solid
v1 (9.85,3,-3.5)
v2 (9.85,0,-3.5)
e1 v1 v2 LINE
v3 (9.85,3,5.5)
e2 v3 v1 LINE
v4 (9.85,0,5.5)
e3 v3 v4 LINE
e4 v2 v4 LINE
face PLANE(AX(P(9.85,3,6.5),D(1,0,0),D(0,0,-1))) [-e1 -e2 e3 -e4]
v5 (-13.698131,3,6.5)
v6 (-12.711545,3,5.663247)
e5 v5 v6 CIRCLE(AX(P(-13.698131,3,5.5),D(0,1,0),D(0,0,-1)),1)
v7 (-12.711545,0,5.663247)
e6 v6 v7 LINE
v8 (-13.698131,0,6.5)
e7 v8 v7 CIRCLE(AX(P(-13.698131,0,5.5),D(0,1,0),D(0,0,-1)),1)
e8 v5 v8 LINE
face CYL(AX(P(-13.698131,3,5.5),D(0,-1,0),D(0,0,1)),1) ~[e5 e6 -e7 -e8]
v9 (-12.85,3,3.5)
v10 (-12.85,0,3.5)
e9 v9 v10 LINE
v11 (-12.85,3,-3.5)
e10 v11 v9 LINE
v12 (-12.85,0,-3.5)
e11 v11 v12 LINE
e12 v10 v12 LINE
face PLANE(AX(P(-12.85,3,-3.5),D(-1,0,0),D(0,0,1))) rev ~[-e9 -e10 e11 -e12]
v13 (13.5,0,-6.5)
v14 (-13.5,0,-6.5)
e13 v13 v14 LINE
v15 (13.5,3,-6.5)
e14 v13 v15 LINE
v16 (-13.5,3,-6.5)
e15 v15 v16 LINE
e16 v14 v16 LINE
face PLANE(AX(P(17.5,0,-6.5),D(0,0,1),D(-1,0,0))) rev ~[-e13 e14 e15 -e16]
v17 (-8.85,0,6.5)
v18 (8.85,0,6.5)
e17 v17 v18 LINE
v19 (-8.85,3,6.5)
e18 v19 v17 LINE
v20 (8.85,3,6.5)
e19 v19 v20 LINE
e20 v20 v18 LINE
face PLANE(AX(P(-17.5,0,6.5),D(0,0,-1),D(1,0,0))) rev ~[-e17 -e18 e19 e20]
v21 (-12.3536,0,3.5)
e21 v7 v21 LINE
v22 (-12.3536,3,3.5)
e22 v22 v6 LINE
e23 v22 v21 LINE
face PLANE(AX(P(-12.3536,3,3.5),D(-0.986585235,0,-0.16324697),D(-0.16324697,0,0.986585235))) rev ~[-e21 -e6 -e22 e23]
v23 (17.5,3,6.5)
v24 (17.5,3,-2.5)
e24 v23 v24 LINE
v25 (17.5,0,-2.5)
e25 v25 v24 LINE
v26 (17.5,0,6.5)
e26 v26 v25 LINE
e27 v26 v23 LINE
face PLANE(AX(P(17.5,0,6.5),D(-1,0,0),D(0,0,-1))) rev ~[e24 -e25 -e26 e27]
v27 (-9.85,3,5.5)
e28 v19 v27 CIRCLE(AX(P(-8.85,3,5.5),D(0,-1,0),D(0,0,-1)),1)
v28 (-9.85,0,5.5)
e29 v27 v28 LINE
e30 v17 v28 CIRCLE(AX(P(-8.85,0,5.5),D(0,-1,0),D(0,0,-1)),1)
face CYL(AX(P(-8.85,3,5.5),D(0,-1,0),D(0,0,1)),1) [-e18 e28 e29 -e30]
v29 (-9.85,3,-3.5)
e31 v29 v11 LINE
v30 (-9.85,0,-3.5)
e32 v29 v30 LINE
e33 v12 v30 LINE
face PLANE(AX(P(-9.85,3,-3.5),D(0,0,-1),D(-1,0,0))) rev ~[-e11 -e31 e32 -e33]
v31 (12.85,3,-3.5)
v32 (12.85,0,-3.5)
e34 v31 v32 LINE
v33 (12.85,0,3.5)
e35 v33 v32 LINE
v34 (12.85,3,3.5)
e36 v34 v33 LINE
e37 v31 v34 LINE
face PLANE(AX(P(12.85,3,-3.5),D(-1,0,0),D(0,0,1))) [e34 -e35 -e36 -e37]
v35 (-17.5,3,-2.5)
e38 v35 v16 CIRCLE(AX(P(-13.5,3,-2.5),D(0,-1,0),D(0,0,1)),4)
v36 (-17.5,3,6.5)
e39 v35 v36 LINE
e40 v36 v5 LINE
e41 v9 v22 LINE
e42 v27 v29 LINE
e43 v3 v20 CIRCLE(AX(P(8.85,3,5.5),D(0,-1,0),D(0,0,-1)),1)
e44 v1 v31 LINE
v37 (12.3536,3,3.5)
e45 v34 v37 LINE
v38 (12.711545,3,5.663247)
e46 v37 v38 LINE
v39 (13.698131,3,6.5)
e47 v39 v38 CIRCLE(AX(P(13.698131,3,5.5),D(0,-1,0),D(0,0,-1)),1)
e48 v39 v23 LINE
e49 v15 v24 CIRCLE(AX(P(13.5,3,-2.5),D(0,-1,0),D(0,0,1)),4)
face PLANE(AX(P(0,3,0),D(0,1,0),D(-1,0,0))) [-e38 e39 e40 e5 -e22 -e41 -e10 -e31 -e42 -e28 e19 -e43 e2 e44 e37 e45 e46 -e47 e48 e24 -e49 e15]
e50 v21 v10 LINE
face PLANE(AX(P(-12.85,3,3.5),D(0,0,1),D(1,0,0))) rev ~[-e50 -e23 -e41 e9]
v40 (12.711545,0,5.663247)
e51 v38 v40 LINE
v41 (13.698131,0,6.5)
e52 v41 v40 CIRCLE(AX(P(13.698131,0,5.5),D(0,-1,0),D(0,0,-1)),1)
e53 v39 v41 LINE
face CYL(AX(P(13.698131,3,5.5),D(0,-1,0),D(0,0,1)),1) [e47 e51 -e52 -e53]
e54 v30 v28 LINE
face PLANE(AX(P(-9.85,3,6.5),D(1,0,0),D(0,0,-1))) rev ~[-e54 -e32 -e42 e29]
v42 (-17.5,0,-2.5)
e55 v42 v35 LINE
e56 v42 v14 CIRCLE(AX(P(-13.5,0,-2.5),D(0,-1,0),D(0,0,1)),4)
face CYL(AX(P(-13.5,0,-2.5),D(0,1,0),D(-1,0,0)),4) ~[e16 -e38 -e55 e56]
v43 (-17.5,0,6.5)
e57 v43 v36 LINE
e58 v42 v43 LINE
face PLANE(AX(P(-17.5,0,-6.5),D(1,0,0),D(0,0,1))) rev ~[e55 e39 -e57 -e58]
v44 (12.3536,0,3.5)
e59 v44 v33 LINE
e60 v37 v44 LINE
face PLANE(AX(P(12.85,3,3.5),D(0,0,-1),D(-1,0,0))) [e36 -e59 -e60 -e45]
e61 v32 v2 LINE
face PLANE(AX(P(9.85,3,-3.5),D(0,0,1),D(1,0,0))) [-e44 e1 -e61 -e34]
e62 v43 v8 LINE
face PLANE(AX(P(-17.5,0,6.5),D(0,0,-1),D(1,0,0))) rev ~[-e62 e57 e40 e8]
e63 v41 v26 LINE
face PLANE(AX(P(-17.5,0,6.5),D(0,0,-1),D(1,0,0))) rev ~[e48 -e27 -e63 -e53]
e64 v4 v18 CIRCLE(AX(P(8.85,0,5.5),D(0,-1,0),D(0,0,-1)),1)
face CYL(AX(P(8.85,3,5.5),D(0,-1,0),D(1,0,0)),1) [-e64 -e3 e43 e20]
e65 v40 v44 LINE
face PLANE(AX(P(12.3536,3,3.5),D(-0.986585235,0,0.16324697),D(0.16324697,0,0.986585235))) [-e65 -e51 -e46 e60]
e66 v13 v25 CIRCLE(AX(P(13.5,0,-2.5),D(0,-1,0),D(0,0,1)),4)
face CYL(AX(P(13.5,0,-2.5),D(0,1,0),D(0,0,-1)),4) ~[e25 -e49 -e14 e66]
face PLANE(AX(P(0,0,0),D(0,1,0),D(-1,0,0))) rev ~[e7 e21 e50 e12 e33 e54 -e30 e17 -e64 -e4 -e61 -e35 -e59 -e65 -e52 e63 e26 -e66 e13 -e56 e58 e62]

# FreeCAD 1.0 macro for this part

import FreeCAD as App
import Part
import Sketcher
Q = App.Units.Quantity


def edges_at(feature, points):
    """Names of the edges that pass closest to the given points."""
    edges = feature.Shape.Edges
    near = lambda p: min(range(len(edges)), key=lambda i: edges[i].distToShape(Part.Vertex(*p))[0])
    return sorted({f"Edge{near(p) + 1}" for p in points})

doc = App.newDocument("Part")
params = doc.addObject("Spreadsheet::Sheet", "Params")
for row, (alias, value) in enumerate([
    ("sketch1_width", "35 mm"),
    ("sketch1_height", "13 mm"),
    ("pad1_length", "3 mm"),
    ("fillet_radius", "4 mm"),
    ("sketch2_width", "3 mm"),
    ("sketch2_height", "10 mm"),
    ("fillet2_radius", "1 mm"),
], start=1):
    params.set(f"A{row}", alias)
    params.set(f"B{row}", "=" + value)
    params.setAlias(f"B{row}", alias)

body = doc.addObject("PartDesign::Body", "Body")

# Sketch on XZ plane
sketch1 = body.newObject("Sketcher::SketchObject", "Sketch")
sketch1.AttachmentSupport = (doc.getObject("XZ_Plane"), [""])
sketch1.MapMode = "FlatFace"
sketch1.addGeometry(Part.LineSegment(App.Vector(-18, -6, 0), App.Vector(-18, 6, 0)), False)
sketch1.addGeometry(Part.LineSegment(App.Vector(-18, 6, 0), App.Vector(18, 6, 0)), False)
sketch1.addGeometry(Part.LineSegment(App.Vector(18, 6, 0), App.Vector(18, -6, 0)), False)
sketch1.addGeometry(Part.LineSegment(App.Vector(18, -6, 0), App.Vector(-18, -6, 0)), False)
sketch1.addConstraint(Sketcher.Constraint("Coincident", 0, 2, 1, 1))
sketch1.addConstraint(Sketcher.Constraint("Coincident", 1, 2, 2, 1))
sketch1.addConstraint(Sketcher.Constraint("Coincident", 2, 2, 3, 1))
sketch1.addConstraint(Sketcher.Constraint("Coincident", 3, 2, 0, 1))
sketch1.addConstraint(Sketcher.Constraint("Vertical", 0))
sketch1.addConstraint(Sketcher.Constraint("Horizontal", 1))
sketch1.addConstraint(Sketcher.Constraint("Vertical", 2))
sketch1.addConstraint(Sketcher.Constraint("Horizontal", 3))
sketch1.addConstraint(Sketcher.Constraint("Symmetric", 0, 2, 2, 2, -1, 1))
sketch1.addConstraint(Sketcher.Constraint("DistanceX", 1, 1, 1, 2, Q("35 mm")))
sketch1.addConstraint(Sketcher.Constraint("DistanceY", 0, 1, 0, 2, Q("13 mm")))
sketch1.setExpression("Constraints[9]", "Params.sketch1_width")
sketch1.setExpression("Constraints[10]", "Params.sketch1_height")
pad1 = body.newObject("PartDesign::Pad", "Pad")
pad1.Profile = sketch1
pad1.setExpression("Length", "Params.pad1_length")
pad1.Reversed = True
doc.recompute()

fillet = body.newObject("PartDesign::Fillet", "Fillet")
fillet.Base = (pad1, edges_at(pad1, [(-17.5, 1.5, -6.5), (17.5, 1.5, -6.5)]))
fillet.setExpression("Radius", "Params.fillet_radius")

# Sketch on XZ plane
sketch2 = body.newObject("Sketcher::SketchObject", "Sketch001")
sketch2.AttachmentSupport = (doc.getObject("XZ_Plane"), [""])
sketch2.MapMode = "FlatFace"
sketch2.AttachmentOffset = App.Placement(App.Vector(0, 0, -3), App.Rotation())
sketch2.addGeometry(Part.LineSegment(App.Vector(-12.35, 3.5, 0), App.Vector(-12.85, 6.5, 0)), False)
sketch2.addGeometry(Part.LineSegment(App.Vector(-12.85, 6.5, 0), App.Vector(-9.85, 6.5, 0)), False)
sketch2.addGeometry(Part.LineSegment(App.Vector(-9.85, 6.5, 0), App.Vector(-9.85, -3.5, 0)), False)
sketch2.addGeometry(Part.LineSegment(App.Vector(-9.85, -3.5, 0), App.Vector(-12.85, -3.5, 0)), False)
sketch2.addGeometry(Part.LineSegment(App.Vector(-12.85, -3.5, 0), App.Vector(-12.85, 3.5, 0)), False)
sketch2.addGeometry(Part.LineSegment(App.Vector(-12.85, 3.5, 0), App.Vector(-12.35, 3.5, 0)), False)
sketch2.addGeometry(Part.LineSegment(App.Vector(9.85, -3.5, 0), App.Vector(9.85, 6.5, 0)), False)
sketch2.addGeometry(Part.LineSegment(App.Vector(9.85, 6.5, 0), App.Vector(12.85, 6.5, 0)), False)
sketch2.addGeometry(Part.LineSegment(App.Vector(12.85, 6.5, 0), App.Vector(12.35, 3.5, 0)), False)
sketch2.addGeometry(Part.LineSegment(App.Vector(12.35, 3.5, 0), App.Vector(12.85, 3.5, 0)), False)
sketch2.addGeometry(Part.LineSegment(App.Vector(12.85, 3.5, 0), App.Vector(12.85, -3.5, 0)), False)
sketch2.addGeometry(Part.LineSegment(App.Vector(12.85, -3.5, 0), App.Vector(9.85, -3.5, 0)), False)
sketch2.addConstraint(Sketcher.Constraint("Coincident", 0, 2, 1, 1))
sketch2.addConstraint(Sketcher.Constraint("Coincident", 1, 2, 2, 1))
sketch2.addConstraint(Sketcher.Constraint("Coincident", 2, 2, 3, 1))
sketch2.addConstraint(Sketcher.Constraint("Coincident", 3, 2, 4, 1))
sketch2.addConstraint(Sketcher.Constraint("Coincident", 4, 2, 5, 1))
sketch2.addConstraint(Sketcher.Constraint("Coincident", 5, 2, 0, 1))
sketch2.addConstraint(Sketcher.Constraint("Coincident", 6, 2, 7, 1))
sketch2.addConstraint(Sketcher.Constraint("Coincident", 7, 2, 8, 1))
sketch2.addConstraint(Sketcher.Constraint("Coincident", 8, 2, 9, 1))
sketch2.addConstraint(Sketcher.Constraint("Coincident", 9, 2, 10, 1))
sketch2.addConstraint(Sketcher.Constraint("Coincident", 10, 2, 11, 1))
sketch2.addConstraint(Sketcher.Constraint("Coincident", 11, 2, 6, 1))
sketch2.addConstraint(Sketcher.Constraint("Horizontal", 1))
sketch2.addConstraint(Sketcher.Constraint("Vertical", 2))
sketch2.addConstraint(Sketcher.Constraint("Horizontal", 3))
sketch2.addConstraint(Sketcher.Constraint("Vertical", 4))
sketch2.addConstraint(Sketcher.Constraint("Horizontal", 5))
sketch2.addConstraint(Sketcher.Constraint("Vertical", 6))
sketch2.addConstraint(Sketcher.Constraint("Horizontal", 7))
sketch2.addConstraint(Sketcher.Constraint("Horizontal", 9))
sketch2.addConstraint(Sketcher.Constraint("Vertical", 10))
sketch2.addConstraint(Sketcher.Constraint("Horizontal", 11))
sketch2.addConstraint(Sketcher.Constraint("Symmetric", 3, 2, 9, 2, -1, 1))
sketch2.addConstraint(Sketcher.Constraint("Symmetric", 1, 2, 6, 2, -2))
sketch2.addConstraint(Sketcher.Constraint("Symmetric", 5, 2, 8, 2, -2))
sketch2.addConstraint(Sketcher.Constraint("Horizontal", 3, 2, 10, 2))
sketch2.addConstraint(Sketcher.Constraint("Vertical", 0, 2, 3, 2))
sketch2.addConstraint(Sketcher.Constraint("Vertical", 7, 2, 9, 2))
sketch2.addConstraint(Sketcher.Constraint("DistanceX", 1, 1, 1, 2, Q("3 mm")))
sketch2.addConstraint(Sketcher.Constraint("DistanceY", 2, 2, 2, 1, Q("10 mm")))
sketch2.addConstraint(Sketcher.Constraint("DistanceY", 4, 2, 0, 2, Q("3 mm")))
sketch2.addConstraint(Sketcher.Constraint("DistanceX", 1, 2, -1, 1, Q("9.85 mm")))
sketch2.addConstraint(Sketcher.Constraint("DistanceX", 5, 1, 5, 2, Q("0.4964 mm")))
sketch2.setExpression("Constraints[28]", "Params.sketch2_width")
sketch2.setExpression("Constraints[29]", "Params.sketch2_height")
pocket1 = body.newObject("PartDesign::Pocket", "Pocket")
pocket1.Profile = sketch2
pocket1.Type = "UpToFirst"
pocket1.Reversed = True
doc.recompute()

fillet2 = body.newObject("PartDesign::Fillet", "Fillet001")
fillet2.Base = (pocket1, edges_at(pocket1, [
    (-12.85, 1.5, 6.5),
    (-9.85, 1.5, 6.5),
    (9.85, 1.5, 6.5),
    (12.85, 1.5, 6.5),
]))
fillet2.setExpression("Radius", "Params.fillet2_radius")

doc.recompute()
